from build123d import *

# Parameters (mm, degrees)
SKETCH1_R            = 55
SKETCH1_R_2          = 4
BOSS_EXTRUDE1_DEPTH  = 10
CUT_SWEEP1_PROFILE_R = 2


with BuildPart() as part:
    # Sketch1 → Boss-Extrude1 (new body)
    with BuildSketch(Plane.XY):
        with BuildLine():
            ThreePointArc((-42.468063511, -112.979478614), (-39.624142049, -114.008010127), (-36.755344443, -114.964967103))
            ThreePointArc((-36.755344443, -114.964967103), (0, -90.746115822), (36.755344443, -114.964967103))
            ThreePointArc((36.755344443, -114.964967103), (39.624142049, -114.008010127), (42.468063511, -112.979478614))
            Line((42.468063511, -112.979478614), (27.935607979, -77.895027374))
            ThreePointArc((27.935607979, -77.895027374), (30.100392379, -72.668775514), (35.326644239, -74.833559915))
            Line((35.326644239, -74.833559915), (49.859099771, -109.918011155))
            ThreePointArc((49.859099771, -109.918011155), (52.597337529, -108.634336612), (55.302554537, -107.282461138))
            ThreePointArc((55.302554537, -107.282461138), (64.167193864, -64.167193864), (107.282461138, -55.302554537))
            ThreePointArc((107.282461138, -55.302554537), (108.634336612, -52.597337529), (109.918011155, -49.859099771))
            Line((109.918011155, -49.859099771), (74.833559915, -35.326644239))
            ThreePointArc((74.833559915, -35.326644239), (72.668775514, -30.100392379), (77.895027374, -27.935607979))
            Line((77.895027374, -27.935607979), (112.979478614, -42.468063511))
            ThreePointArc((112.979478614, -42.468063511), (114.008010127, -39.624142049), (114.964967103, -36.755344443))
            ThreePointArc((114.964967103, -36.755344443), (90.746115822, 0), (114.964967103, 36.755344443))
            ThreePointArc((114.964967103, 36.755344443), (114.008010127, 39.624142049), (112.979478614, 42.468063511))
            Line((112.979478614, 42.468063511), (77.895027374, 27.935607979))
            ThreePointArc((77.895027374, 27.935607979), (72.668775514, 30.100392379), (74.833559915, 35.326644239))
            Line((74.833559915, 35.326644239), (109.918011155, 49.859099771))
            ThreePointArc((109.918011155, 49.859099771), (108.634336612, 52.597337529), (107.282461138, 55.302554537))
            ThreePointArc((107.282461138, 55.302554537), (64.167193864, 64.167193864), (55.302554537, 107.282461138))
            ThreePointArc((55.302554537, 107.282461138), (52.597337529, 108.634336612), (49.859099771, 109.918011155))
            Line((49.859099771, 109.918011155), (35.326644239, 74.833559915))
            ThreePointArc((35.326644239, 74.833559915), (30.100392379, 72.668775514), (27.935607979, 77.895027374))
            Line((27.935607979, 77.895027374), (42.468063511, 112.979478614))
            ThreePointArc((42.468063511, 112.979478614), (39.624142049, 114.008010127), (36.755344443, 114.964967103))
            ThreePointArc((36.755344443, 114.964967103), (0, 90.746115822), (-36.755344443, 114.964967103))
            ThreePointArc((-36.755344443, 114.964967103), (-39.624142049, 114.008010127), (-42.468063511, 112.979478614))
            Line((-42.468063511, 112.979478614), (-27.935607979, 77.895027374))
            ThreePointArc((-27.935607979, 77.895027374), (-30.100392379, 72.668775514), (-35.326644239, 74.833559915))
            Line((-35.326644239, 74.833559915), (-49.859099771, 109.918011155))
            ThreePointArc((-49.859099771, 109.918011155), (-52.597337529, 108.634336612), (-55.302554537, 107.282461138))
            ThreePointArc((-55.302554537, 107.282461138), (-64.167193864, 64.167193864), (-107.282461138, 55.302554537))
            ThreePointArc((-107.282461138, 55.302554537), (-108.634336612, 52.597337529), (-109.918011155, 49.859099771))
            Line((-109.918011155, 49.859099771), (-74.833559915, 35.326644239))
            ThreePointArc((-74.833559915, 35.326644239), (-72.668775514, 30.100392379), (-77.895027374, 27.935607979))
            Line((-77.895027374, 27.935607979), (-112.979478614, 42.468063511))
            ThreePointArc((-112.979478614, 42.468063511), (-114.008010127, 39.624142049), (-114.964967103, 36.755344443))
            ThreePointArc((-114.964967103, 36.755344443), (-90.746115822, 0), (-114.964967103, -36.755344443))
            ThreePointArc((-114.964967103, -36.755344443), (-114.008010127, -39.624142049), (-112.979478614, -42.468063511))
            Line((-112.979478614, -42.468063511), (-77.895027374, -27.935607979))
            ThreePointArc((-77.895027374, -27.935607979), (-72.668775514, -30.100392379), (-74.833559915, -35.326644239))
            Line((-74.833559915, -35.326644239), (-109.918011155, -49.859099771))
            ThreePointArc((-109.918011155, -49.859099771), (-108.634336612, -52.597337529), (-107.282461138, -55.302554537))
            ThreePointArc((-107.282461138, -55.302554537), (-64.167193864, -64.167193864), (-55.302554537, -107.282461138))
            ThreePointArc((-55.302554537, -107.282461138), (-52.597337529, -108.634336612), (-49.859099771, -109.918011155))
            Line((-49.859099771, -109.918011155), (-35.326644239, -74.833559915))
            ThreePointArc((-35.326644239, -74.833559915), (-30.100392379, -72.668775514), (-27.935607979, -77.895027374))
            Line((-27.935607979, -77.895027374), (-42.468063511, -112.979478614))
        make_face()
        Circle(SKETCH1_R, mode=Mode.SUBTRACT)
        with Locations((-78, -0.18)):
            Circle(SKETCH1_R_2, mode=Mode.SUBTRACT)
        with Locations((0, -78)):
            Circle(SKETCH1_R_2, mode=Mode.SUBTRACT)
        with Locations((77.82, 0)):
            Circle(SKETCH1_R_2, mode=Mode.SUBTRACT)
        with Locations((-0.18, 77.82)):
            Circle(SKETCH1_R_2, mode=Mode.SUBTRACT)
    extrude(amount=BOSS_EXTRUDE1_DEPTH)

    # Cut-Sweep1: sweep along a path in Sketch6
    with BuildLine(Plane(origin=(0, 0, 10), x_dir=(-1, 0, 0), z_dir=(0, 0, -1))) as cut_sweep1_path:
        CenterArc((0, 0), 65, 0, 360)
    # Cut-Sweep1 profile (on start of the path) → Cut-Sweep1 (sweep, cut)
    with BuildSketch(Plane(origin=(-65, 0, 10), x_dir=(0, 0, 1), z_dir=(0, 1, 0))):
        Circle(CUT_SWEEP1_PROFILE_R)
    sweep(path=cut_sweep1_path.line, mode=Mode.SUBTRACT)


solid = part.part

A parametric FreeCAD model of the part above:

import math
import FreeCAD as App
import Part
import Sketcher

V = App.Vector
Q = App.Units.Quantity

doc = App.newDocument("Part")
params = doc.addObject("Spreadsheet::Sheet", "Params")
for row, (alias, value) in enumerate([
    ("sketch1_diameter", "8 mm"),
    ("sketch1_diameter2", "110 mm"),
    ("sketch1_radius", "40 mm"),
    ("pad1_length", "10 mm"),
    ("sketch2_diameter", "4 mm"),
    ("sketch3_diameter", "130 mm"),
], start=1):
    params.set(f"A{row}", alias)
    params.set(f"B{row}", "=" + value)
    params.setAlias(f"B{row}", alias)

body = doc.addObject("PartDesign::Body", "Body")

# Sketch on XY plane
sketch1 = body.newObject("Sketcher::SketchObject", "Sketch")
sketch1.AttachmentSupport = (doc.getObject("XY_Plane"), [""])
sketch1.MapMode = "FlatFace"
sketch1.addGeometry([
    Part.ArcOfCircle(Part.Circle(V(0, 0, 0), V(0, 0, 1), 120.7), math.radians(-110.6), math.radians(-107.73)),  # 0
    Part.ArcOfCircle(Part.Circle(V(0, -130.7, 0), V(0, 0, 1), 40), math.radians(23), math.radians(157)),  # 1
    Part.ArcOfCircle(Part.Circle(V(0, 0, 0), V(0, 0, 1), 120.7), math.radians(-72.27), math.radians(-69.4)),  # 2
    Part.LineSegment(V(42.5, -113, 0), V(27.9, -77.9, 0)),  # 3
    Part.ArcOfCircle(Part.Circle(V(31.6, -76.4, 0), V(0, 0, 1), 4), math.radians(22), math.radians(203)),  # 4
    Part.LineSegment(V(35.3, -74.8, 0), V(49.9, -109.9, 0)),  # 5
    Part.ArcOfCircle(Part.Circle(V(0, 0, 0), V(0, 0, 1), 120.7), math.radians(-65.6), math.radians(-62.73)),  # 6
    Part.ArcOfCircle(Part.Circle(V(92.5, -92.5, 0), V(0, 0, 1), 40), math.radians(68), math.radians(202)),  # 7
    Part.ArcOfCircle(Part.Circle(V(0, 0, 0), V(0, 0, 1), 120.7), math.radians(-27.27), math.radians(-24.4)),  # 8
    Part.LineSegment(V(109.9, -49.9, 0), V(74.8, -35.3, 0)),  # 9
    Part.ArcOfCircle(Part.Circle(V(76.4, -31.6, 0), V(0, 0, 1), 4), math.radians(67), math.radians(248)),  # 10
    Part.LineSegment(V(77.9, -27.9, 0), V(113, -42.5, 0)),  # 11
    Part.ArcOfCircle(Part.Circle(V(0, 0, 0), V(0, 0, 1), 120.7), math.radians(-20.6), math.radians(-17.73)),  # 12
    Part.ArcOfCircle(Part.Circle(V(130.7, 0, 0), V(0, 0, 1), 40), math.radians(113), math.radians(247)),  # 13
    Part.ArcOfCircle(Part.Circle(V(0, 0, 0), V(0, 0, 1), 120.7), math.radians(17.73), math.radians(20.6)),  # 14
    Part.LineSegment(V(113, 42.5, 0), V(77.9, 27.9, 0)),  # 15
    Part.ArcOfCircle(Part.Circle(V(76.4, 31.6, 0), V(0, 0, 1), 4), math.radians(112), math.radians(293)),  # 16
    Part.LineSegment(V(74.8, 35.3, 0), V(109.9, 49.9, 0)),  # 17
    Part.ArcOfCircle(Part.Circle(V(0, 0, 0), V(0, 0, 1), 120.7), math.radians(24.4), math.radians(27.27)),  # 18
    Part.ArcOfCircle(Part.Circle(V(92.5, 92.5, 0), V(0, 0, 1), 40), math.radians(158), math.radians(292)),  # 19
    Part.ArcOfCircle(Part.Circle(V(0, 0, 0), V(0, 0, 1), 120.7), math.radians(62.73), math.radians(65.6)),  # 20
    Part.LineSegment(V(49.9, 109.9, 0), V(35.3, 74.8, 0)),  # 21
    Part.ArcOfCircle(Part.Circle(V(31.6, 76.4, 0), V(0, 0, 1), 4), math.radians(157), math.radians(338)),  # 22
    Part.LineSegment(V(27.9, 77.9, 0), V(42.5, 113, 0)),  # 23
    Part.ArcOfCircle(Part.Circle(V(0, 0, 0), V(0, 0, 1), 120.7), math.radians(69.4), math.radians(72.27)),  # 24
    Part.ArcOfCircle(Part.Circle(V(0, 130.7, 0), V(0, 0, 1), 40), math.radians(-157), math.radians(-23)),  # 25
    Part.ArcOfCircle(Part.Circle(V(0, 0, 0), V(0, 0, 1), 120.7), math.radians(107.73), math.radians(110.6)),  # 26
    Part.LineSegment(V(-42.5, 113, 0), V(-27.9, 77.9, 0)),  # 27
    Part.ArcOfCircle(Part.Circle(V(-31.6, 76.4, 0), V(0, 0, 1), 4), math.radians(-158), math.radians(23)),  # 28
    Part.LineSegment(V(-35.3, 74.8, 0), V(-49.9, 109.9, 0)),  # 29
    Part.ArcOfCircle(Part.Circle(V(0, 0, 0), V(0, 0, 1), 120.7), math.radians(114.4), math.radians(117.27)),  # 30
    Part.ArcOfCircle(Part.Circle(V(-92.5, 92.5, 0), V(0, 0, 1), 40), math.radians(-112), math.radians(22)),  # 31
    Part.ArcOfCircle(Part.Circle(V(0, 0, 0), V(0, 0, 1), 120.7), math.radians(152.73), math.radians(155.6)),  # 32
    Part.LineSegment(V(-109.9, 49.9, 0), V(-74.8, 35.3, 0)),  # 33
    Part.ArcOfCircle(Part.Circle(V(-76.4, 31.6, 0), V(0, 0, 1), 4), math.radians(-113), math.radians(68)),  # 34
    Part.LineSegment(V(-77.9, 27.9, 0), V(-113, 42.5, 0)),  # 35
    Part.ArcOfCircle(Part.Circle(V(0, 0, 0), V(0, 0, 1), 120.7), math.radians(159.4), math.radians(162.27)),  # 36
    Part.ArcOfCircle(Part.Circle(V(-130.7, 0, 0), V(0, 0, 1), 40), math.radians(-67), math.radians(67)),  # 37
    Part.ArcOfCircle(Part.Circle(V(0, 0, 0), V(0, 0, 1), 120.7), math.radians(-162.27), math.radians(-159.4)),  # 38
    Part.LineSegment(V(-113, -42.5, 0), V(-77.9, -27.9, 0)),  # 39
    Part.ArcOfCircle(Part.Circle(V(-76.4, -31.6, 0), V(0, 0, 1), 4), math.radians(-68), math.radians(113)),  # 40
    Part.LineSegment(V(-74.8, -35.3, 0), V(-109.9, -49.9, 0)),  # 41
    Part.ArcOfCircle(Part.Circle(V(0, 0, 0), V(0, 0, 1), 120.7), math.radians(-155.6), math.radians(-152.73)),  # 42
    Part.ArcOfCircle(Part.Circle(V(-92.5, -92.5, 0), V(0, 0, 1), 40), math.radians(-22), math.radians(112)),  # 43
    Part.ArcOfCircle(Part.Circle(V(0, 0, 0), V(0, 0, 1), 120.7), math.radians(-117.27), math.radians(-114.4)),  # 44
    Part.LineSegment(V(-49.9, -109.9, 0), V(-35.3, -74.8, 0)),  # 45
    Part.ArcOfCircle(Part.Circle(V(-31.6, -76.4, 0), V(0, 0, 1), 4), math.radians(-23), math.radians(158)),  # 46
    Part.LineSegment(V(-27.9, -77.9, 0), V(-42.5, -113, 0)),  # 47
    Part.Circle(V(-78, -0.2, 0), V(0, 0, 1), 4),  # 48
    Part.Circle(V(0, -78, 0), V(0, 0, 1), 4),  # 49
    Part.Circle(V(-0.2, 77.8, 0), V(0, 0, 1), 4),  # 50
    Part.Circle(V(0, 0, 0), V(0, 0, 1), 55),  # 51
    Part.Circle(V(77.8, 0, 0), V(0, 0, 1), 4),  # 52
], False)
sketch1.addConstraint([
    Sketcher.Constraint("Coincident", 0, 2, 1, 2),
    Sketcher.Constraint("Coincident", 1, 1, 2, 1),
    Sketcher.Constraint("Coincident", 2, 2, 3, 1),
    Sketcher.Constraint("Tangent", 3, 2, 4, 2),
    Sketcher.Constraint("Tangent", 4, 1, 5, 1),
    Sketcher.Constraint("Coincident", 5, 2, 6, 1),
    Sketcher.Constraint("Coincident", 6, 2, 7, 2),
    Sketcher.Constraint("Coincident", 7, 1, 8, 1),
    Sketcher.Constraint("Coincident", 8, 2, 9, 1),
    Sketcher.Constraint("Tangent", 9, 2, 10, 2),
    Sketcher.Constraint("Tangent", 10, 1, 11, 1),
    Sketcher.Constraint("Coincident", 11, 2, 12, 1),
    Sketcher.Constraint("Coincident", 12, 2, 13, 2),
    Sketcher.Constraint("Coincident", 13, 1, 14, 1),
    Sketcher.Constraint("Coincident", 14, 2, 15, 1),
    Sketcher.Constraint("Tangent", 15, 2, 16, 2),
    Sketcher.Constraint("Tangent", 16, 1, 17, 1),
    Sketcher.Constraint("Coincident", 17, 2, 18, 1),
    Sketcher.Constraint("Coincident", 18, 2, 19, 2),
    Sketcher.Constraint("Coincident", 19, 1, 20, 1),
    Sketcher.Constraint("Coincident", 20, 2, 21, 1),
    Sketcher.Constraint("Tangent", 21, 2, 22, 2),
    Sketcher.Constraint("Tangent", 22, 1, 23, 1),
    Sketcher.Constraint("Coincident", 23, 2, 24, 1),
    Sketcher.Constraint("Coincident", 24, 2, 25, 2),
    Sketcher.Constraint("Coincident", 25, 1, 26, 1),
    Sketcher.Constraint("Coincident", 26, 2, 27, 1),
    Sketcher.Constraint("Tangent", 27, 2, 28, 2),
    Sketcher.Constraint("Tangent", 28, 1, 29, 1),
    Sketcher.Constraint("Coincident", 29, 2, 30, 1),
    Sketcher.Constraint("Coincident", 30, 2, 31, 2),
    Sketcher.Constraint("Coincident", 31, 1, 32, 1),
    Sketcher.Constraint("Coincident", 32, 2, 33, 1),
    Sketcher.Constraint("Tangent", 33, 2, 34, 2),
    Sketcher.Constraint("Tangent", 34, 1, 35, 1),
    Sketcher.Constraint("Coincident", 35, 2, 36, 1),
    Sketcher.Constraint("Coincident", 36, 2, 37, 2),
    Sketcher.Constraint("Coincident", 37, 1, 38, 1),
    Sketcher.Constraint("Coincident", 38, 2, 39, 1),
    Sketcher.Constraint("Tangent", 39, 2, 40, 2),
    Sketcher.Constraint("Tangent", 40, 1, 41, 1),
    Sketcher.Constraint("Coincident", 41, 2, 42, 1),
    Sketcher.Constraint("Coincident", 42, 2, 43, 2),
    Sketcher.Constraint("Coincident", 43, 1, 44, 1),
    Sketcher.Constraint("Coincident", 44, 2, 45, 1),
    Sketcher.Constraint("Tangent", 45, 2, 46, 2),
    Sketcher.Constraint("Tangent", 46, 1, 47, 1),
    Sketcher.Constraint("Coincident", 47, 2, 0, 1),
    Sketcher.Constraint("Coincident", 0, 3, -1, 1),
    Sketcher.Constraint("Coincident", 2, 3, -1, 1),
    Sketcher.Constraint("Coincident", 6, 3, -1, 1),
    Sketcher.Constraint("Coincident", 8, 3, -1, 1),
    Sketcher.Constraint("Coincident", 12, 3, -1, 1),
    Sketcher.Constraint("Coincident", 14, 3, -1, 1),
    Sketcher.Constraint("Coincident", 18, 3, -1, 1),
    Sketcher.Constraint("Coincident", 20, 3, -1, 1),
    Sketcher.Constraint("Coincident", 24, 3, -1, 1),
    Sketcher.Constraint("Coincident", 26, 3, -1, 1),
    Sketcher.Constraint("Coincident", 30, 3, -1, 1),
    Sketcher.Constraint("Coincident", 32, 3, -1, 1),
    Sketcher.Constraint("Coincident", 36, 3, -1, 1),
    Sketcher.Constraint("Coincident", 38, 3, -1, 1),
    Sketcher.Constraint("Coincident", 42, 3, -1, 1),
    Sketcher.Constraint("Coincident", 44, 3, -1, 1),
    Sketcher.Constraint("Coincident", 51, 3, -1, 1),
    Sketcher.Constraint("Equal", 0, 2),
    Sketcher.Constraint("Equal", 2, 6),
    Sketcher.Constraint("Equal", 1, 7),
    Sketcher.Constraint("Equal", 6, 8),
    Sketcher.Constraint("Equal", 4, 10),
    Sketcher.Constraint("Equal", 8, 12),
    Sketcher.Constraint("Equal", 7, 13),
    Sketcher.Constraint("Equal", 12, 14),
    Sketcher.Constraint("Equal", 10, 16),
    Sketcher.Constraint("Equal", 14, 18),
    Sketcher.Constraint("Equal", 13, 19),
    Sketcher.Constraint("Equal", 18, 20),
    Sketcher.Constraint("Equal", 16, 22),
    Sketcher.Constraint("Equal", 20, 24),
    Sketcher.Constraint("Equal", 19, 25),
    Sketcher.Constraint("Equal", 24, 26),
    Sketcher.Constraint("Equal", 22, 28),
    Sketcher.Constraint("Equal", 26, 30),
    Sketcher.Constraint("Equal", 25, 31),
    Sketcher.Constraint("Equal", 30, 32),
    Sketcher.Constraint("Equal", 28, 34),
    Sketcher.Constraint("Equal", 32, 36),
    Sketcher.Constraint("Equal", 31, 37),
    Sketcher.Constraint("Equal", 36, 38),
    Sketcher.Constraint("Equal", 34, 40),
    Sketcher.Constraint("Equal", 38, 42),
    Sketcher.Constraint("Equal", 37, 43),
    Sketcher.Constraint("Equal", 42, 44),
    Sketcher.Constraint("Equal", 40, 46),
    Sketcher.Constraint("Equal", 46, 48),
    Sketcher.Constraint("Equal", 48, 49),
    Sketcher.Constraint("Equal", 49, 50),
    Sketcher.Constraint("Equal", 50, 52),
    Sketcher.Constraint("Symmetric", 1, 3, 25, 3, -1, 1),
    Sketcher.Constraint("Symmetric", 4, 3, 28, 3, -1, 1),
    Sketcher.Constraint("Symmetric", 7, 3, 31, 3, -1, 1),
    Sketcher.Constraint("Symmetric", 10, 3, 34, 3, -1, 1),
    Sketcher.Constraint("Symmetric", 13, 3, 37, 3, -1, 1),
    Sketcher.Constraint("Symmetric", 16, 3, 40, 3, -1, 1),
    Sketcher.Constraint("Symmetric", 19, 3, 43, 3, -1, 1),
    Sketcher.Constraint("Symmetric", 22, 3, 46, 3, -1, 1),
    Sketcher.Constraint("Symmetric", 22, 3, 28, 3, -2),
    Sketcher.Constraint("Symmetric", 19, 3, 31, 3, -2),
    Sketcher.Constraint("Symmetric", 16, 3, 34, 3, -2),
    Sketcher.Constraint("PointOnObject", 1, 3, -2),
    Sketcher.Constraint("PointOnObject", 13, 3, -1),
    Sketcher.Constraint("PointOnObject", 49, 3, -2),
    Sketcher.Constraint("PointOnObject", 52, 3, -1),
    Sketcher.Constraint("Parallel", 3, 5),
    Sketcher.Constraint("Parallel", 9, 11),
    Sketcher.Constraint("Perpendicular", 5, 15),
    Sketcher.Constraint("Parallel", 15, 17),
    Sketcher.Constraint("Perpendicular", 11, 21),
    Sketcher.Constraint("Parallel", 21, 23),
    Sketcher.Constraint("Perpendicular", 17, 27),
    Sketcher.Constraint("Parallel", 27, 29),
    Sketcher.Constraint("Perpendicular", 23, 33),
    Sketcher.Constraint("Parallel", 33, 35),
    Sketcher.Constraint("Perpendicular", 29, 39),
    Sketcher.Constraint("Parallel", 39, 41),
    Sketcher.Constraint("Perpendicular", 35, 45),
    Sketcher.Constraint("Parallel", 45, 47),
    Sketcher.Constraint("Horizontal", 23, 2, 26, 2),
    Sketcher.Constraint("Equal", 3, 5),
    Sketcher.Constraint("Equal", 5, 9),
    Sketcher.Constraint("Equal", 9, 11),
    Sketcher.Constraint("Diameter", 48, 8.0),
    Sketcher.Constraint("Diameter", 51, 110.0),
    Sketcher.Constraint("Radius", 1, 40.0),
    Sketcher.Constraint("DistanceX", 48, 3, -1, 1, 78.0),
    Sketcher.Constraint("DistanceY", 49, 3, -1, 1, 78.0),
    Sketcher.Constraint("Angle", 3, Q("112.5 deg")),
    Sketcher.Constraint("DistanceY", 48, 3, -1, 1, 0.18),
    Sketcher.Constraint("DistanceX", 50, 3, -1, 1, 0.18),
    Sketcher.Constraint("DistanceY", -1, 1, 50, 3, 77.82),
    Sketcher.Constraint("DistanceX", -1, 1, 52, 3, 77.82),
    Sketcher.Constraint("Radius", 0, 120.697551),
    Sketcher.Constraint("DistanceY", 4, 1, -1, 1, 74.83356),
    Sketcher.Constraint("DistanceY", 6, 2, -1, 1, 107.282461),
    Sketcher.Constraint("DistanceX", -1, 1, 7, 1, 107.282461),
    Sketcher.Constraint("DistanceY", 1, 3, -1, 1, 130.746116),
    Sketcher.Constraint("DistanceX", -1, 1, 13, 3, 130.746116),
])
sketch1.setExpression("Constraints[131]", "Params.sketch1_diameter")
sketch1.setExpression("Constraints[132]", "Params.sketch1_diameter2")
sketch1.setExpression("Constraints[133]", "Params.sketch1_radius")
pad1 = body.newObject("PartDesign::Pad", "Pad")
pad1.Profile = sketch1
pad1.setExpression("Length", "Params.pad1_length")

# Sketch on XZ plane
sketch2 = body.newObject("Sketcher::SketchObject", "Sketch001")
sketch2.AttachmentSupport = (doc.getObject("XZ_Plane"), [""])
sketch2.MapMode = "FlatFace"
sketch2.addGeometry(Part.Circle(V(-65, 10, 0), V(0, 0, 1), 2), False)
sketch2.addConstraint([
    Sketcher.Constraint("Diameter", 0, 4.0),
    Sketcher.Constraint("DistanceX", 0, 3, -1, 1, 65.0),
    Sketcher.Constraint("DistanceY", -1, 1, 0, 3, 10.0),
])
sketch2.setExpression("Constraints[0]", "Params.sketch2_diameter")

# Sketch on XY plane
sketch3 = body.newObject("Sketcher::SketchObject", "Sketch002")
sketch3.AttachmentSupport = (doc.getObject("XY_Plane"), [""])
sketch3.MapMode = "FlatFace"
sketch3.AttachmentOffset = App.Placement(V(0, 0, 10), App.Rotation())
sketch3.addGeometry(Part.Circle(V(0, 0, 0), V(0, 0, 1), 65), False)
sketch3.addConstraint([
    Sketcher.Constraint("Coincident", 0, 3, -1, 1),
    Sketcher.Constraint("Diameter", 0, 130.0),
])
sketch3.setExpression("Constraints[1]", "Params.sketch3_diameter")
doc.recompute()

subtractivepipe = body.newObject("PartDesign::SubtractivePipe", "SubtractivePipe")
subtractivepipe.Profile = sketch2
subtractivepipe.Spine = (sketch3, ["Edge1"])

doc.recompute()
